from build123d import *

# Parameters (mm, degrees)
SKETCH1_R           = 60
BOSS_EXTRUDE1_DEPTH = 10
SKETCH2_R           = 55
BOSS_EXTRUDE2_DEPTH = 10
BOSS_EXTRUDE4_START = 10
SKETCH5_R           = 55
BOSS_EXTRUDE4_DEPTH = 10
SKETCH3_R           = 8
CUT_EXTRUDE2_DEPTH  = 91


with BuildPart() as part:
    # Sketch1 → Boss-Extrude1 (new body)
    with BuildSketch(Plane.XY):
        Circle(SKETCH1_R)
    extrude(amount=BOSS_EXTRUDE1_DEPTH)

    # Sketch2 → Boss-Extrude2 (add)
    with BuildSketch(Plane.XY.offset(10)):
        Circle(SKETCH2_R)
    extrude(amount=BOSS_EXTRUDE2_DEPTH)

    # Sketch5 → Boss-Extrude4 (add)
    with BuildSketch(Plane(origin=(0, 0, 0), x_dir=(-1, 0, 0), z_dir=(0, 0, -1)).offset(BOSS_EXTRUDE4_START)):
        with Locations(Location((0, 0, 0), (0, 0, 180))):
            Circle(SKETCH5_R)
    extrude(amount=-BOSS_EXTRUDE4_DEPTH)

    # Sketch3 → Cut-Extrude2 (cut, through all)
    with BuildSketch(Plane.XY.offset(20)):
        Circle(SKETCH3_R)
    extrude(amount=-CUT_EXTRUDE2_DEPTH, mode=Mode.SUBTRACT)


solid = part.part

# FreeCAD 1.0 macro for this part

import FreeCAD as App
import Part
import Sketcher

V = App.Vector

doc = App.newDocument("Part")
body = doc.addObject("PartDesign::Body", "Body")

# Sketch on XY plane
sketch1 = body.newObject("Sketcher::SketchObject", "Sketch")
sketch1.AttachmentSupport = (doc.getObject("XY_Plane"), [""])
sketch1.MapMode = "FlatFace"
sketch1.addGeometry(Part.Circle(V(0, 0, 0), V(0, 0, 1), 60), False)
sketch1.addConstraint(Sketcher.Constraint("Coincident", 0, 3, -1, 1))
sketch1.addConstraint(Sketcher.Constraint("Diameter", 0, 120.0))
pad1 = body.newObject("PartDesign::Pad", "Pad")
pad1.Profile = sketch1
pad1.Length = 10

# Sketch on XY plane
sketch2 = body.newObject("Sketcher::SketchObject", "Sketch001")
sketch2.AttachmentSupport = (doc.getObject("XY_Plane"), [""])
sketch2.MapMode = "FlatFace"
sketch2.AttachmentOffset = App.Placement(V(0, 0, 10), App.Rotation())
sketch2.addGeometry(Part.Circle(V(0, 0, 0), V(0, 0, 1), 55), False)
sketch2.addConstraint(Sketcher.Constraint("Coincident", 0, 3, -1, 1))
sketch2.addConstraint(Sketcher.Constraint("Diameter", 0, 110.0))
pad2 = body.newObject("PartDesign::Pad", "Pad001")
pad2.Profile = sketch2
pad2.Length = 10

# Sketch on XY plane
sketch3 = body.newObject("Sketcher::SketchObject", "Sketch002")
sketch3.AttachmentSupport = (doc.getObject("XY_Plane"), [""])
sketch3.MapMode = "FlatFace"
sketch3.AttachmentOffset = App.Placement(V(0, 0, -10), App.Rotation())
sketch3.addGeometry(Part.Circle(V(0, 0, 0), V(0, 0, 1), 55), False)
sketch3.addConstraint(Sketcher.Constraint("Coincident", 0, 3, -1, 1))
sketch3.addConstraint(Sketcher.Constraint("Diameter", 0, 110.0))
pad3 = body.newObject("PartDesign::Pad", "Pad002")
pad3.Profile = sketch3
pad3.Length = 10

# Sketch on XY plane
sketch4 = body.newObject("Sketcher::SketchObject", "Sketch003")
sketch4.AttachmentSupport = (doc.getObject("XY_Plane"), [""])
sketch4.MapMode = "FlatFace"
sketch4.AttachmentOffset = App.Placement(V(0, 0, 20), App.Rotation())
sketch4.addGeometry(Part.Circle(V(0, 0, 0), V(0, 0, 1), 8), False)
sketch4.addConstraint(Sketcher.Constraint("Coincident", 0, 3, -1, 1))
sketch4.addConstraint(Sketcher.Constraint("Diameter", 0, 16.0))
pocket1 = body.newObject("PartDesign::Pocket", "Pocket")
pocket1.Profile = sketch4
pocket1.Type = "ThroughAll"

doc.recompute()
